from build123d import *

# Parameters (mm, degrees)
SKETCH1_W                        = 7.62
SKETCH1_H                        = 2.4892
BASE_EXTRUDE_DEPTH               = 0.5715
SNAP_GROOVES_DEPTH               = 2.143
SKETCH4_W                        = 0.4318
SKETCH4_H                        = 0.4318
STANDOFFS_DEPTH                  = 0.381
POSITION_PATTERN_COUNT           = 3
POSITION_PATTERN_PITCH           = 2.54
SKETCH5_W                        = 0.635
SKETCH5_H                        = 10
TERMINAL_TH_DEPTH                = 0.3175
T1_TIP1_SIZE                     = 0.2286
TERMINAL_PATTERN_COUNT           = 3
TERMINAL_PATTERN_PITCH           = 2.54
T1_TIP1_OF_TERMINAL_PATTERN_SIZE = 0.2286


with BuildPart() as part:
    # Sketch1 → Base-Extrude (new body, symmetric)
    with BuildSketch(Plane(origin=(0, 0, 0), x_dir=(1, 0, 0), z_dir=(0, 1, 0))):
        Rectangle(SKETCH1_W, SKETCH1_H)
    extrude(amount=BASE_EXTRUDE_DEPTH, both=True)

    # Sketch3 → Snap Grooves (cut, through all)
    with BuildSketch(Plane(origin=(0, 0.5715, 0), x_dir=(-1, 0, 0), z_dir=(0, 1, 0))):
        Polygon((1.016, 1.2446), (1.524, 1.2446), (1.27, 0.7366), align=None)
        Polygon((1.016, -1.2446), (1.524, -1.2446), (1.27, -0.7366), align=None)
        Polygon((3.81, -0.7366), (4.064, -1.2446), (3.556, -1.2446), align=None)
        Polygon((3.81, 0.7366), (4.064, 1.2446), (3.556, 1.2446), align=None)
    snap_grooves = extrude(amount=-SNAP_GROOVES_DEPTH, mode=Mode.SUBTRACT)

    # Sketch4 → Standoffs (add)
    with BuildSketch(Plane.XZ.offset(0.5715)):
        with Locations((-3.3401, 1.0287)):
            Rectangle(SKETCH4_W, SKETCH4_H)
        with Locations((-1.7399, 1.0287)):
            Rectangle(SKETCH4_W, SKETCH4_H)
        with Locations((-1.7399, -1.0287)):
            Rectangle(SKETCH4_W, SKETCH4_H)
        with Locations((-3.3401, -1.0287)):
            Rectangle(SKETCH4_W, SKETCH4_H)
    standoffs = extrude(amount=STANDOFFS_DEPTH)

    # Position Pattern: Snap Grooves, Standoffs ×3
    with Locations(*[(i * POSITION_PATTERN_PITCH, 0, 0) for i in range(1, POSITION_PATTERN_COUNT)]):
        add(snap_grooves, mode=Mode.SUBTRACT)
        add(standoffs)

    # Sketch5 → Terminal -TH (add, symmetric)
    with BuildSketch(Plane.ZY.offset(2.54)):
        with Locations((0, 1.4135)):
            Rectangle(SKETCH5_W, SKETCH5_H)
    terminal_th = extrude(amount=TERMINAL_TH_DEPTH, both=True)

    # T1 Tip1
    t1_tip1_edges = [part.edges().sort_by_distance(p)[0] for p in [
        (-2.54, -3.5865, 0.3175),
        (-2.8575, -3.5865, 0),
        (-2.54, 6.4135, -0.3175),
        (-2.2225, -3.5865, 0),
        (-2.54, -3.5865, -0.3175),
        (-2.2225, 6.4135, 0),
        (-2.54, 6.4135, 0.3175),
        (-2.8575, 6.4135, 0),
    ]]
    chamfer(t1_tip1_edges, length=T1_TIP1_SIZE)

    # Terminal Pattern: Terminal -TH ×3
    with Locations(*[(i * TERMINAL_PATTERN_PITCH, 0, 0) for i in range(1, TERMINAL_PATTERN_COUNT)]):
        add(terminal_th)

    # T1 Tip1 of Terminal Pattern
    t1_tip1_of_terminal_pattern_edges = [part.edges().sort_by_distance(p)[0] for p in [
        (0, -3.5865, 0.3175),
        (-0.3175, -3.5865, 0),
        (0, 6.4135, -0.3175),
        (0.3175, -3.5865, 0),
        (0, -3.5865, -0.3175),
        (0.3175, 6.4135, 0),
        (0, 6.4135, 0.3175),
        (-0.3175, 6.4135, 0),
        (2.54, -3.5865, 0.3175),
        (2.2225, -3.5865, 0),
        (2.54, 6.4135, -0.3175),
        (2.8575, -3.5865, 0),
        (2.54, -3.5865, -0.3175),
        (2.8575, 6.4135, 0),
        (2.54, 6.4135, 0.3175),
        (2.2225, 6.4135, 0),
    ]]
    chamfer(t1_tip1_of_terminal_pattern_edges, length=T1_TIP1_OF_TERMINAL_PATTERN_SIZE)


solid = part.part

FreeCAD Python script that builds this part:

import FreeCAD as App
import Part
import Sketcher

V = App.Vector
Q = App.Units.Quantity


def edges_at(feature, points):
    """Names of the edges that pass closest to the given points."""
    edges = feature.Shape.Edges
    near = lambda p: min(range(len(edges)), key=lambda i: edges[i].distToShape(Part.Vertex(*p))[0])
    return sorted({f"Edge{near(p) + 1}" for p in points})

doc = App.newDocument("Part")
body = doc.addObject("PartDesign::Body", "Body")

sketch1 = body.newObject("Sketcher::SketchObject", "Sketch")
sketch1.AttachmentSupport = (doc.getObject("XZ_Plane"), [""])
sketch1.MapMode = "FlatFace"
sketch1.addGeometry([
    Part.LineSegment(V(-3.8, -1.2, 0), V(-3.8, 1.2, 0)),
    Part.LineSegment(V(-3.8, 1.2, 0), V(3.8, 1.2, 0)),
    Part.LineSegment(V(3.8, 1.2, 0), V(3.8, -1.2, 0)),
    Part.LineSegment(V(3.8, -1.2, 0), V(-3.8, -1.2, 0)),
], False)
sketch1.addConstraint([
    Sketcher.Constraint("Coincident", 0, 2, 1, 1),
    Sketcher.Constraint("Coincident", 1, 2, 2, 1),
    Sketcher.Constraint("Coincident", 2, 2, 3, 1),
    Sketcher.Constraint("Coincident", 3, 2, 0, 1),
    Sketcher.Constraint("Vertical", 0),
    Sketcher.Constraint("Horizontal", 1),
    Sketcher.Constraint("Vertical", 2),
    Sketcher.Constraint("Horizontal", 3),
    Sketcher.Constraint("Symmetric", 0, 2, 2, 2, -1, 1),
    Sketcher.Constraint("DistanceX", 1, 1, 1, 2, Q("0.3 in")),
    Sketcher.Constraint("DistanceY", 0, 1, 0, 2, Q("0.098 in")),
])
pad1 = body.newObject("PartDesign::Pad", "Pad")
pad1.Profile = sketch1
pad1.Length = Q("0.045 in")
pad1.Midplane = True

sketch2 = body.newObject("Sketcher::SketchObject", "Sketch001")
sketch2.AttachmentSupport = (doc.getObject("XZ_Plane"), [""])
sketch2.MapMode = "FlatFace"
sketch2.AttachmentOffset = App.Placement(V(0, 0, -0.0225 * 25.4), App.Rotation())
sketch2.addGeometry([
    Part.LineSegment(V(-1.5, 1.2, 0), V(-1, 1.2, 0)),
    Part.LineSegment(V(-1, 1.2, 0), V(-1.3, 0.7, 0)),
    Part.LineSegment(V(-1.3, 0.7, 0), V(-1.5, 1.2, 0)),
    Part.LineSegment(V(-1, -1.2, 0), V(-1.5, -1.2, 0)),
    Part.LineSegment(V(-1.5, -1.2, 0), V(-1.3, -0.7, 0)),
    Part.LineSegment(V(-1.3, -0.7, 0), V(-1, -1.2, 0)),
    Part.LineSegment(V(-4.1, -1.2, 0), V(-3.8, -0.7, 0)),
    Part.LineSegment(V(-3.8, -0.7, 0), V(-3.6, -1.2, 0)),
    Part.LineSegment(V(-3.6, -1.2, 0), V(-4.1, -1.2, 0)),
    Part.LineSegment(V(-3.8, 0.7, 0), V(-4.1, 1.2, 0)),
    Part.LineSegment(V(-4.1, 1.2, 0), V(-3.6, 1.2, 0)),
    Part.LineSegment(V(-3.6, 1.2, 0), V(-3.8, 0.7, 0)),
], False)
sketch2.addConstraint([
    Sketcher.Constraint("Coincident", 0, 2, 1, 1),
    Sketcher.Constraint("Coincident", 1, 2, 2, 1),
    Sketcher.Constraint("Coincident", 2, 2, 0, 1),
    Sketcher.Constraint("Coincident", 3, 2, 4, 1),
    Sketcher.Constraint("Coincident", 4, 2, 5, 1),
    Sketcher.Constraint("Coincident", 5, 2, 3, 1),
    Sketcher.Constraint("Coincident", 6, 2, 7, 1),
    Sketcher.Constraint("Coincident", 7, 2, 8, 1),
    Sketcher.Constraint("Coincident", 8, 2, 6, 1),
    Sketcher.Constraint("Coincident", 9, 2, 10, 1),
    Sketcher.Constraint("Coincident", 10, 2, 11, 1),
    Sketcher.Constraint("Coincident", 11, 2, 9, 1),
    Sketcher.Constraint("Horizontal", 0),
    Sketcher.Constraint("Horizontal", 3),
    Sketcher.Constraint("Horizontal", 8),
    Sketcher.Constraint("Horizontal", 10),
    Sketcher.Constraint("Symmetric", 2, 2, 3, 2, -1),
    Sketcher.Constraint("Symmetric", 1, 2, 4, 2, -1),
    Sketcher.Constraint("Symmetric", 8, 2, 9, 2, -1),
    Sketcher.Constraint("Symmetric", 6, 2, 11, 2, -1),
    Sketcher.Constraint("Parallel", 1, 4),
    Sketcher.Constraint("Parallel", 2, 5),
    Sketcher.Constraint("Parallel", 4, 6),
    Sketcher.Constraint("Parallel", 5, 7),
    Sketcher.Constraint("Parallel", 6, 11),
    Sketcher.Constraint("Horizontal", 4, 2, 6, 2),
    Sketcher.Constraint("Horizontal", 5, 2, 7, 2),
    Sketcher.Constraint("DistanceX", 0, 1, 0, 2, Q("0.02 in")),
    Sketcher.Constraint("DistanceX", 6, 2, 4, 2, Q("0.1 in")),
    Sketcher.Constraint("DistanceX", 0, 2, -1, 1, Q("0.04 in")),
    Sketcher.Constraint("DistanceY", 1, 2, 0, 2, Q("0.02 in")),
    Sketcher.Constraint("DistanceY", -1, 1, 0, 2, Q("0.049 in")),
])
pocket1 = body.newObject("PartDesign::Pocket", "Pocket")
pocket1.Profile = sketch2
pocket1.Type = "ThroughAll"
pocket1.Reversed = True

sketch3 = body.newObject("Sketcher::SketchObject", "Sketch002")
sketch3.AttachmentSupport = (doc.getObject("XZ_Plane"), [""])
sketch3.MapMode = "FlatFace"
sketch3.AttachmentOffset = App.Placement(V(0, 0, 0.0225 * 25.4), App.Rotation())
sketch3.addGeometry([
    Part.LineSegment(V(-3.56, 1.24, 0), V(-3.56, 0.81, 0)),
    Part.LineSegment(V(-3.56, 0.81, 0), V(-3.12, 0.81, 0)),
    Part.LineSegment(V(-3.12, 0.81, 0), V(-3.12, 1.24, 0)),
    Part.LineSegment(V(-3.12, 1.24, 0), V(-3.56, 1.24, 0)),
    Part.LineSegment(V(-1.96, 1.24, 0), V(-1.96, 0.81, 0)),
    Part.LineSegment(V(-1.96, 0.81, 0), V(-1.52, 0.81, 0)),
    Part.LineSegment(V(-1.52, 0.81, 0), V(-1.52, 1.24, 0)),
    Part.LineSegment(V(-1.52, 1.24, 0), V(-1.96, 1.24, 0)),
    Part.LineSegment(V(-1.96, -0.81, 0), V(-1.96, -1.24, 0)),
    Part.LineSegment(V(-1.96, -1.24, 0), V(-1.52, -1.24, 0)),
    Part.LineSegment(V(-1.52, -1.24, 0), V(-1.52, -0.81, 0)),
    Part.LineSegment(V(-1.52, -0.81, 0), V(-1.96, -0.81, 0)),
    Part.LineSegment(V(-3.56, -0.81, 0), V(-3.56, -1.24, 0)),
    Part.LineSegment(V(-3.56, -1.24, 0), V(-3.12, -1.24, 0)),
    Part.LineSegment(V(-3.12, -1.24, 0), V(-3.12, -0.81, 0)),
    Part.LineSegment(V(-3.12, -0.81, 0), V(-3.56, -0.81, 0)),
], False)
sketch3.addConstraint([
    Sketcher.Constraint("Coincident", 0, 2, 1, 1),
    Sketcher.Constraint("Coincident", 1, 2, 2, 1),
    Sketcher.Constraint("Coincident", 2, 2, 3, 1),
    Sketcher.Constraint("Coincident", 3, 2, 0, 1),
    Sketcher.Constraint("Coincident", 4, 2, 5, 1),
    Sketcher.Constraint("Coincident", 5, 2, 6, 1),
    Sketcher.Constraint("Coincident", 6, 2, 7, 1),
    Sketcher.Constraint("Coincident", 7, 2, 4, 1),
    Sketcher.Constraint("Coincident", 8, 2, 9, 1),
    Sketcher.Constraint("Coincident", 9, 2, 10, 1),
    Sketcher.Constraint("Coincident", 10, 2, 11, 1),
    Sketcher.Constraint("Coincident", 11, 2, 8, 1),
    Sketcher.Constraint("Coincident", 12, 2, 13, 1),
    Sketcher.Constraint("Coincident", 13, 2, 14, 1),
    Sketcher.Constraint("Coincident", 14, 2, 15, 1),
    Sketcher.Constraint("Coincident", 15, 2, 12, 1),
    Sketcher.Constraint("Vertical", 0),
    Sketcher.Constraint("Horizontal", 1),
    Sketcher.Constraint("Vertical", 2),
    Sketcher.Constraint("Horizontal", 3),
    Sketcher.Constraint("Vertical", 4),
    Sketcher.Constraint("Horizontal", 5),
    Sketcher.Constraint("Vertical", 6),
    Sketcher.Constraint("Horizontal", 7),
    Sketcher.Constraint("Vertical", 8),
    Sketcher.Constraint("Horizontal", 9),
    Sketcher.Constraint("Vertical", 10),
    Sketcher.Constraint("Horizontal", 11),
    Sketcher.Constraint("Vertical", 12),
    Sketcher.Constraint("Horizontal", 13),
    Sketcher.Constraint("Vertical", 14),
    Sketcher.Constraint("Horizontal", 15),
    Sketcher.Constraint("Symmetric", 7, 2, 8, 2, -1),
    Sketcher.Constraint("Symmetric", 5, 2, 10, 2, -1),
    Sketcher.Constraint("Symmetric", 3, 2, 12, 2, -1),
    Sketcher.Constraint("Symmetric", 1, 2, 14, 2, -1),
    Sketcher.Constraint("Horizontal", 1, 2, 4, 2),
    Sketcher.Constraint("Horizontal", 3, 2, 6, 2),
    Sketcher.Constraint("Equal", 3, 5),
    Sketcher.Constraint("Equal", 15, 0),
    Sketcher.Constraint("DistanceX", 1, 1, 1, 2, Q("0.017 in")),
    Sketcher.Constraint("DistanceX", 0, 2, -1, 1, Q("0.14 in")),
    Sketcher.Constraint("DistanceX", 5, 2, -1, 1, Q("0.06 in")),
    Sketcher.Constraint("DistanceY", -1, 1, 0, 2, Q("0.032 in")),
])
pad2 = body.newObject("PartDesign::Pad", "Pad001")
pad2.Profile = sketch3
pad2.Length = Q("0.015 in")
doc.recompute()

linearpattern = body.newObject("PartDesign::LinearPattern", "LinearPattern")
linearpattern.Originals = [pocket1, pad2]
linearpattern.Direction = (doc.getObject("X_Axis"), [""])
linearpattern.Mode = "offset"
linearpattern.Offset = Q("0.1 in")
linearpattern.Occurrences = 3
body.Tip = linearpattern

sketch4 = body.newObject("Sketcher::SketchObject", "Sketch003")
sketch4.AttachmentSupport = (doc.getObject("YZ_Plane"), [""])
sketch4.MapMode = "FlatFace"
sketch4.AttachmentOffset = App.Placement(V(0, 0, -0.1 * 25.4), App.Rotation())
sketch4.addGeometry([
    Part.LineSegment(V(6.4, -0.3, 0), V(-3.6, -0.3, 0)),
    Part.LineSegment(V(-3.6, -0.3, 0), V(-3.6, 0.3, 0)),
    Part.LineSegment(V(-3.6, 0.3, 0), V(6.4, 0.3, 0)),
    Part.LineSegment(V(6.4, 0.3, 0), V(6.4, -0.3, 0)),
], False)
sketch4.addConstraint([
    Sketcher.Constraint("Coincident", 0, 2, 1, 1),
    Sketcher.Constraint("Coincident", 1, 2, 2, 1),
    Sketcher.Constraint("Coincident", 2, 2, 3, 1),
    Sketcher.Constraint("Coincident", 3, 2, 0, 1),
    Sketcher.Constraint("Horizontal", 0),
    Sketcher.Constraint("Vertical", 1),
    Sketcher.Constraint("Horizontal", 2),
    Sketcher.Constraint("Vertical", 3),
    Sketcher.Constraint("DistanceY", 1, 1, 1, 2, Q("0.025 in")),
    Sketcher.Constraint("DistanceX", 0, 2, 0, 1, 10.0),
    Sketcher.Constraint("DistanceY", 0, 2, -1, 1, Q("0.0125 in")),
    Sketcher.Constraint("DistanceX", -1, 1, 2, 2, Q("0.2525 in")),
])
pad3 = body.newObject("PartDesign::Pad", "Pad002")
pad3.Profile = sketch4
pad3.Length = Q("0.025 in")
pad3.Midplane = True
doc.recompute()

chamfer = body.newObject("PartDesign::Chamfer", "Chamfer")
chamfer.Base = (pad3, edges_at(pad3, [
    (-2.54, -3.587, 0.318),
    (-2.857, -3.587, 0),
    (-2.54, 6.413, -0.318),
    (-2.223, -3.587, 0),
    (-2.54, -3.587, -0.318),
    (-2.223, 6.413, 0),
    (-2.54, 6.413, 0.318),
    (-2.857, 6.413, 0),
]))
chamfer.Size = Q("0.009 in")
doc.recompute()

linearpattern2 = body.newObject("PartDesign::LinearPattern", "LinearPattern001")
linearpattern2.Originals = [pad3]
linearpattern2.Direction = (doc.getObject("X_Axis"), [""])
linearpattern2.Mode = "offset"
linearpattern2.Offset = Q("0.1 in")
linearpattern2.Occurrences = 3
body.Tip = linearpattern2
doc.recompute()

chamfer2 = body.newObject("PartDesign::Chamfer", "Chamfer001")
chamfer2.Base = (linearpattern2, edges_at(linearpattern2, [
    (0, -3.587, 0.318),
    (-0.318, -3.587, 0),
    (0, 6.413, -0.318),
    (0.318, -3.587, 0),
    (0, -3.587, -0.318),
    (0.318, 6.413, 0),
    (0, 6.413, 0.318),
    (-0.318, 6.413, 0),
    (2.54, -3.587, 0.318),
    (2.223, -3.587, 0),
    (2.54, 6.413, -0.318),
    (2.857, -3.587, 0),
    (2.54, -3.587, -0.318),
    (2.857, 6.413, 0),
    (2.54, 6.413, 0.318),
    (2.223, 6.413, 0),
]))
chamfer2.Size = Q("0.009 in")

doc.recompute()
